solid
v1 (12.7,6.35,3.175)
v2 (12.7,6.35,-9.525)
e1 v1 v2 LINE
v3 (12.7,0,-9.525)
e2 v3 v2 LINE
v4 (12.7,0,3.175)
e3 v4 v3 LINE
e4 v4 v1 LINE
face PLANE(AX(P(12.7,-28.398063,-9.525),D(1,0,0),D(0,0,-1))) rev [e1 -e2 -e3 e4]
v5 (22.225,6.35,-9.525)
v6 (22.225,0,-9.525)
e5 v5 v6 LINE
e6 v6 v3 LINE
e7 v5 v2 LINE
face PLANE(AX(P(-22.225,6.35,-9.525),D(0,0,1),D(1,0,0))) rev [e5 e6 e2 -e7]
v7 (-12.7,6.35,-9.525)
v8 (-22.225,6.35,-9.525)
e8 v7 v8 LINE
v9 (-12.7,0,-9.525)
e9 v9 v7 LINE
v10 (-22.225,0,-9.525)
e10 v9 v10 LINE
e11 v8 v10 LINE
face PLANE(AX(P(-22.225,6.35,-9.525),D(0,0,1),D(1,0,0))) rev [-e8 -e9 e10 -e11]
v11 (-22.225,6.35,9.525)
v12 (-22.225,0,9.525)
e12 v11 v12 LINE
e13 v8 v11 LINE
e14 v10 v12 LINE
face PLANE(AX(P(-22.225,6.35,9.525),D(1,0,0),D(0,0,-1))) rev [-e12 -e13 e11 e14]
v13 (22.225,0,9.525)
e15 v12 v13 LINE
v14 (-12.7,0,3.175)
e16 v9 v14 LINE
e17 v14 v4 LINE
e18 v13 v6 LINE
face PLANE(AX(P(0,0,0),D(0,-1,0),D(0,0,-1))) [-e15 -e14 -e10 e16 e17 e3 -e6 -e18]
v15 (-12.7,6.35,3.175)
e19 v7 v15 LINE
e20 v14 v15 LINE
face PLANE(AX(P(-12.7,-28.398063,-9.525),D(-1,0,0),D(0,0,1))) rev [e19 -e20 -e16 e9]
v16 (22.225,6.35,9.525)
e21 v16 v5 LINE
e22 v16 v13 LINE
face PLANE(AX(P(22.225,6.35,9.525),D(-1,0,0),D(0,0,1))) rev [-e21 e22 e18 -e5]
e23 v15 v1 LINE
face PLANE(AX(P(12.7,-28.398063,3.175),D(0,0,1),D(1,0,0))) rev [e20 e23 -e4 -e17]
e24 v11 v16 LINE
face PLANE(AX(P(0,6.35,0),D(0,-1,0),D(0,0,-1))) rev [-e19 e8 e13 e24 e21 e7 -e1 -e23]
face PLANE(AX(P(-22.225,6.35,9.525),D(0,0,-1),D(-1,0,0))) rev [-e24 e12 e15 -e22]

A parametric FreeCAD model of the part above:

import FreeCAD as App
import Part
import Sketcher
from FreeCAD import Vector
Q = App.Units.Quantity

doc = App.newDocument("Part")
params = doc.addObject("Spreadsheet::Sheet", "Params")
for row, (alias, value) in enumerate([
    ("sketch1_width", "1.75 in"),
    ("sketch1_height", "0.75 in"),
    ("pad1_length", "0.25 in"),
    ("sketch2_width", "1 in"),
    ("sketch2_height", "0.5 in"),
    ("pocket1_length", "0.25 in"),
], start=1):
    params.set(f"A{row}", alias)
    params.set(f"B{row}", "=" + value)
    params.setAlias(f"B{row}", alias)

body = doc.addObject("PartDesign::Body", "Body")

# Sketch on XZ plane
sketch1 = body.newObject("Sketcher::SketchObject", "Sketch")
sketch1.AttachmentSupport = (doc.getObject("XZ_Plane"), [""])
sketch1.MapMode = "FlatFace"
sketch1.addGeometry(Part.LineSegment(Vector(-22.225, -9.525, 0), Vector(-22.225, 9.525, 0)), False)
sketch1.addGeometry(Part.LineSegment(Vector(-22.225, 9.525, 0), Vector(22.225, 9.525, 0)), False)
sketch1.addGeometry(Part.LineSegment(Vector(22.225, 9.525, 0), Vector(22.225, -9.525, 0)), False)
sketch1.addGeometry(Part.LineSegment(Vector(22.225, -9.525, 0), Vector(-22.225, -9.525, 0)), False)
sketch1.addConstraint(Sketcher.Constraint("Coincident", 0, 2, 1, 1))
sketch1.addConstraint(Sketcher.Constraint("Coincident", 1, 2, 2, 1))
sketch1.addConstraint(Sketcher.Constraint("Coincident", 2, 2, 3, 1))
sketch1.addConstraint(Sketcher.Constraint("Coincident", 3, 2, 0, 1))
sketch1.addConstraint(Sketcher.Constraint("Vertical", 0))
sketch1.addConstraint(Sketcher.Constraint("Horizontal", 1))
sketch1.addConstraint(Sketcher.Constraint("Vertical", 2))
sketch1.addConstraint(Sketcher.Constraint("Horizontal", 3))
sketch1.addConstraint(Sketcher.Constraint("Symmetric", 0, 2, 2, 2, -1, 1))
sketch1.addConstraint(Sketcher.Constraint("DistanceX", 1, 1, 1, 2, Q("1.75 in")))
sketch1.addConstraint(Sketcher.Constraint("DistanceY", 0, 1, 0, 2, Q("0.75 in")))
sketch1.setExpression("Constraints[9]", "Params.sketch1_width")
sketch1.setExpression("Constraints[10]", "Params.sketch1_height")
pad1 = body.newObject("PartDesign::Pad", "Pad")
pad1.Profile = sketch1
pad1.setExpression("Length", "Params.pad1_length")
pad1.Reversed = True

# Sketch on XZ plane
sketch2 = body.newObject("Sketcher::SketchObject", "Sketch001")
sketch2.AttachmentSupport = (doc.getObject("XZ_Plane"), [""])
sketch2.MapMode = "FlatFace"
sketch2.AttachmentOffset = App.Placement(Vector(0, 0, -0.25 * 25.4), App.Rotation())
sketch2.addGeometry(Part.LineSegment(Vector(-12.7, -9.525, 0), Vector(-12.7, 3.175, 0)), False)
sketch2.addGeometry(Part.LineSegment(Vector(-12.7, 3.175, 0), Vector(12.7, 3.175, 0)), False)
sketch2.addGeometry(Part.LineSegment(Vector(12.7, 3.175, 0), Vector(12.7, -9.525, 0)), False)
sketch2.addGeometry(Part.LineSegment(Vector(12.7, -9.525, 0), Vector(-12.7, -9.525, 0)), False)
sketch2.addConstraint(Sketcher.Constraint("Coincident", 0, 2, 1, 1))
sketch2.addConstraint(Sketcher.Constraint("Coincident", 1, 2, 2, 1))
sketch2.addConstraint(Sketcher.Constraint("Coincident", 2, 2, 3, 1))
sketch2.addConstraint(Sketcher.Constraint("Coincident", 3, 2, 0, 1))
sketch2.addConstraint(Sketcher.Constraint("Vertical", 0))
sketch2.addConstraint(Sketcher.Constraint("Horizontal", 1))
sketch2.addConstraint(Sketcher.Constraint("Vertical", 2))
sketch2.addConstraint(Sketcher.Constraint("Horizontal", 3))
sketch2.addConstraint(Sketcher.Constraint("DistanceX", 1, 1, 1, 2, Q("1 in")))
sketch2.addConstraint(Sketcher.Constraint("DistanceY", 0, 1, 0, 2, Q("0.5 in")))
sketch2.addConstraint(Sketcher.Constraint("DistanceX", 0, 2, -1, 1, Q("0.5 in")))
sketch2.addConstraint(Sketcher.Constraint("DistanceY", -1, 1, 0, 2, Q("0.125 in")))
sketch2.setExpression("Constraints[8]", "Params.sketch2_width")
sketch2.setExpression("Constraints[9]", "Params.sketch2_height")
pocket1 = body.newObject("PartDesign::Pocket", "Pocket")
pocket1.Profile = sketch2
pocket1.setExpression("Length", "Params.pocket1_length")
pocket1.Reversed = True

doc.recompute()
